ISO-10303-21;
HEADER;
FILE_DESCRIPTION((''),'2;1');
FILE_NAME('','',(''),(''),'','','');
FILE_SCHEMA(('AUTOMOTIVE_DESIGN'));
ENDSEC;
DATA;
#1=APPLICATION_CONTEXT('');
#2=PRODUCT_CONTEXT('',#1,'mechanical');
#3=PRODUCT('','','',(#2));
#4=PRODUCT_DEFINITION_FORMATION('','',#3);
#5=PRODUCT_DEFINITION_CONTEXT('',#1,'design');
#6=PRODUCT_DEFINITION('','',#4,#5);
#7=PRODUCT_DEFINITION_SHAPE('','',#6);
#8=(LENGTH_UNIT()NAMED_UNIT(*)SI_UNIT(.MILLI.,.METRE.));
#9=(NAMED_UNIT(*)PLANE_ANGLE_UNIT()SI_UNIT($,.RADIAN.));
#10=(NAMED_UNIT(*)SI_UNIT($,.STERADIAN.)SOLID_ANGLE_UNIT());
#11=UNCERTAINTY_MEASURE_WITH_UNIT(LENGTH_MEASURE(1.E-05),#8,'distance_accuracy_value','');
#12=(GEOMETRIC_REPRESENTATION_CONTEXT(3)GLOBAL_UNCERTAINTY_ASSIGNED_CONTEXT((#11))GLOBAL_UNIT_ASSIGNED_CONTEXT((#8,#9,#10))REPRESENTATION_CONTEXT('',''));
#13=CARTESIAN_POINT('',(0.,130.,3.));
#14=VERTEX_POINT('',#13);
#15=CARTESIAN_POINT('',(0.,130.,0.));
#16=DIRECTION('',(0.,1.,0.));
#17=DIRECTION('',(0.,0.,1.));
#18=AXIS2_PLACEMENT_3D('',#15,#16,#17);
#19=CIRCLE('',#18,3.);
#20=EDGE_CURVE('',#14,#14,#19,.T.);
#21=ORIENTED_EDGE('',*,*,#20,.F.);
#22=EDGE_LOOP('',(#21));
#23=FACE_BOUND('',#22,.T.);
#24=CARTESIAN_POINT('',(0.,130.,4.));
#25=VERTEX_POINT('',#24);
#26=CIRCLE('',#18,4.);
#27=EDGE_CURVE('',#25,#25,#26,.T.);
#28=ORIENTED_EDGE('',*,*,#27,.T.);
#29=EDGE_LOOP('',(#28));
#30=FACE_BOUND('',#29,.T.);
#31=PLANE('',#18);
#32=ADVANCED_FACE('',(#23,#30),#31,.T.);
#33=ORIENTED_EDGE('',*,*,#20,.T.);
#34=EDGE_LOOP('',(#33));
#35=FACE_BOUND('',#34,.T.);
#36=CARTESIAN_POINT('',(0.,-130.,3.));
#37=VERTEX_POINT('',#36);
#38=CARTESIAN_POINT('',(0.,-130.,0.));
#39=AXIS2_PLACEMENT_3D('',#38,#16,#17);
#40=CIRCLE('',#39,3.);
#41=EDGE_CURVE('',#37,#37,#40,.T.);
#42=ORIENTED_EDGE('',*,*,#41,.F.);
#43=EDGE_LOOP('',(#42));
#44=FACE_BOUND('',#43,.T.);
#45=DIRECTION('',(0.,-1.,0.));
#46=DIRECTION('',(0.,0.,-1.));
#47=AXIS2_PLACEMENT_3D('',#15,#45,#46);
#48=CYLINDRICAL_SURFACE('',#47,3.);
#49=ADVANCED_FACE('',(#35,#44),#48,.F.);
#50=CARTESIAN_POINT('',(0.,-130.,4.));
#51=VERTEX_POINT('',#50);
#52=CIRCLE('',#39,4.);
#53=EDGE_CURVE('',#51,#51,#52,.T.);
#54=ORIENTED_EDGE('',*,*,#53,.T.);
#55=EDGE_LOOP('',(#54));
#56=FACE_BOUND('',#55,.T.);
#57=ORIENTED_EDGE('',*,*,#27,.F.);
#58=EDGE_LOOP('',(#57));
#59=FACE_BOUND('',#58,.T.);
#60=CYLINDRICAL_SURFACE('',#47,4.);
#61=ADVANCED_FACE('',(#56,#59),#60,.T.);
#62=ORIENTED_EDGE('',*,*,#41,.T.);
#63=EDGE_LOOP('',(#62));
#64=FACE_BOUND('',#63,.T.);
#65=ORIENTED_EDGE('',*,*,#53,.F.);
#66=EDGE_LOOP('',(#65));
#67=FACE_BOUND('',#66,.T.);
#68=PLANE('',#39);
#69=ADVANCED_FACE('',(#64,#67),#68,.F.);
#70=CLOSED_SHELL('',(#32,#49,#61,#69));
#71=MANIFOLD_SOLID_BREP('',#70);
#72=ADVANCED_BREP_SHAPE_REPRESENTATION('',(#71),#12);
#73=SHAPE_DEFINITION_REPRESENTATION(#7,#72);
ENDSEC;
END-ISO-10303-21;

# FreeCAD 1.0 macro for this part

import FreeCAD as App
import Part
import Sketcher
Q = App.Units.Quantity

doc = App.newDocument("Part")
body = doc.addObject("PartDesign::Body", "Body")

sketch1 = body.newObject("Sketcher::SketchObject", "Sketch")
sketch1.AttachmentSupport = (doc.getObject("XZ_Plane"), [""])
sketch1.MapMode = "FlatFace"
sketch1.addGeometry(Part.Circle(App.Vector(0, 0, 0), App.Vector(0, 0, 1), 4), False)
sketch1.addGeometry(Part.Circle(App.Vector(0, 0, 0), App.Vector(0, 0, 1), 3), False)
sketch1.addConstraint(Sketcher.Constraint("Coincident", 0, 3, -1, 1))
sketch1.addConstraint(Sketcher.Constraint("Coincident", 1, 3, -1, 1))
sketch1.addConstraint(Sketcher.Constraint("Diameter", 0, Q("8 mm")))
sketch1.addConstraint(Sketcher.Constraint("Diameter", 1, Q("6 mm")))
pad1 = body.newObject("PartDesign::Pad", "Pad")
pad1.Profile = sketch1
pad1.Length = 260
pad1.Midplane = True

doc.recompute()
